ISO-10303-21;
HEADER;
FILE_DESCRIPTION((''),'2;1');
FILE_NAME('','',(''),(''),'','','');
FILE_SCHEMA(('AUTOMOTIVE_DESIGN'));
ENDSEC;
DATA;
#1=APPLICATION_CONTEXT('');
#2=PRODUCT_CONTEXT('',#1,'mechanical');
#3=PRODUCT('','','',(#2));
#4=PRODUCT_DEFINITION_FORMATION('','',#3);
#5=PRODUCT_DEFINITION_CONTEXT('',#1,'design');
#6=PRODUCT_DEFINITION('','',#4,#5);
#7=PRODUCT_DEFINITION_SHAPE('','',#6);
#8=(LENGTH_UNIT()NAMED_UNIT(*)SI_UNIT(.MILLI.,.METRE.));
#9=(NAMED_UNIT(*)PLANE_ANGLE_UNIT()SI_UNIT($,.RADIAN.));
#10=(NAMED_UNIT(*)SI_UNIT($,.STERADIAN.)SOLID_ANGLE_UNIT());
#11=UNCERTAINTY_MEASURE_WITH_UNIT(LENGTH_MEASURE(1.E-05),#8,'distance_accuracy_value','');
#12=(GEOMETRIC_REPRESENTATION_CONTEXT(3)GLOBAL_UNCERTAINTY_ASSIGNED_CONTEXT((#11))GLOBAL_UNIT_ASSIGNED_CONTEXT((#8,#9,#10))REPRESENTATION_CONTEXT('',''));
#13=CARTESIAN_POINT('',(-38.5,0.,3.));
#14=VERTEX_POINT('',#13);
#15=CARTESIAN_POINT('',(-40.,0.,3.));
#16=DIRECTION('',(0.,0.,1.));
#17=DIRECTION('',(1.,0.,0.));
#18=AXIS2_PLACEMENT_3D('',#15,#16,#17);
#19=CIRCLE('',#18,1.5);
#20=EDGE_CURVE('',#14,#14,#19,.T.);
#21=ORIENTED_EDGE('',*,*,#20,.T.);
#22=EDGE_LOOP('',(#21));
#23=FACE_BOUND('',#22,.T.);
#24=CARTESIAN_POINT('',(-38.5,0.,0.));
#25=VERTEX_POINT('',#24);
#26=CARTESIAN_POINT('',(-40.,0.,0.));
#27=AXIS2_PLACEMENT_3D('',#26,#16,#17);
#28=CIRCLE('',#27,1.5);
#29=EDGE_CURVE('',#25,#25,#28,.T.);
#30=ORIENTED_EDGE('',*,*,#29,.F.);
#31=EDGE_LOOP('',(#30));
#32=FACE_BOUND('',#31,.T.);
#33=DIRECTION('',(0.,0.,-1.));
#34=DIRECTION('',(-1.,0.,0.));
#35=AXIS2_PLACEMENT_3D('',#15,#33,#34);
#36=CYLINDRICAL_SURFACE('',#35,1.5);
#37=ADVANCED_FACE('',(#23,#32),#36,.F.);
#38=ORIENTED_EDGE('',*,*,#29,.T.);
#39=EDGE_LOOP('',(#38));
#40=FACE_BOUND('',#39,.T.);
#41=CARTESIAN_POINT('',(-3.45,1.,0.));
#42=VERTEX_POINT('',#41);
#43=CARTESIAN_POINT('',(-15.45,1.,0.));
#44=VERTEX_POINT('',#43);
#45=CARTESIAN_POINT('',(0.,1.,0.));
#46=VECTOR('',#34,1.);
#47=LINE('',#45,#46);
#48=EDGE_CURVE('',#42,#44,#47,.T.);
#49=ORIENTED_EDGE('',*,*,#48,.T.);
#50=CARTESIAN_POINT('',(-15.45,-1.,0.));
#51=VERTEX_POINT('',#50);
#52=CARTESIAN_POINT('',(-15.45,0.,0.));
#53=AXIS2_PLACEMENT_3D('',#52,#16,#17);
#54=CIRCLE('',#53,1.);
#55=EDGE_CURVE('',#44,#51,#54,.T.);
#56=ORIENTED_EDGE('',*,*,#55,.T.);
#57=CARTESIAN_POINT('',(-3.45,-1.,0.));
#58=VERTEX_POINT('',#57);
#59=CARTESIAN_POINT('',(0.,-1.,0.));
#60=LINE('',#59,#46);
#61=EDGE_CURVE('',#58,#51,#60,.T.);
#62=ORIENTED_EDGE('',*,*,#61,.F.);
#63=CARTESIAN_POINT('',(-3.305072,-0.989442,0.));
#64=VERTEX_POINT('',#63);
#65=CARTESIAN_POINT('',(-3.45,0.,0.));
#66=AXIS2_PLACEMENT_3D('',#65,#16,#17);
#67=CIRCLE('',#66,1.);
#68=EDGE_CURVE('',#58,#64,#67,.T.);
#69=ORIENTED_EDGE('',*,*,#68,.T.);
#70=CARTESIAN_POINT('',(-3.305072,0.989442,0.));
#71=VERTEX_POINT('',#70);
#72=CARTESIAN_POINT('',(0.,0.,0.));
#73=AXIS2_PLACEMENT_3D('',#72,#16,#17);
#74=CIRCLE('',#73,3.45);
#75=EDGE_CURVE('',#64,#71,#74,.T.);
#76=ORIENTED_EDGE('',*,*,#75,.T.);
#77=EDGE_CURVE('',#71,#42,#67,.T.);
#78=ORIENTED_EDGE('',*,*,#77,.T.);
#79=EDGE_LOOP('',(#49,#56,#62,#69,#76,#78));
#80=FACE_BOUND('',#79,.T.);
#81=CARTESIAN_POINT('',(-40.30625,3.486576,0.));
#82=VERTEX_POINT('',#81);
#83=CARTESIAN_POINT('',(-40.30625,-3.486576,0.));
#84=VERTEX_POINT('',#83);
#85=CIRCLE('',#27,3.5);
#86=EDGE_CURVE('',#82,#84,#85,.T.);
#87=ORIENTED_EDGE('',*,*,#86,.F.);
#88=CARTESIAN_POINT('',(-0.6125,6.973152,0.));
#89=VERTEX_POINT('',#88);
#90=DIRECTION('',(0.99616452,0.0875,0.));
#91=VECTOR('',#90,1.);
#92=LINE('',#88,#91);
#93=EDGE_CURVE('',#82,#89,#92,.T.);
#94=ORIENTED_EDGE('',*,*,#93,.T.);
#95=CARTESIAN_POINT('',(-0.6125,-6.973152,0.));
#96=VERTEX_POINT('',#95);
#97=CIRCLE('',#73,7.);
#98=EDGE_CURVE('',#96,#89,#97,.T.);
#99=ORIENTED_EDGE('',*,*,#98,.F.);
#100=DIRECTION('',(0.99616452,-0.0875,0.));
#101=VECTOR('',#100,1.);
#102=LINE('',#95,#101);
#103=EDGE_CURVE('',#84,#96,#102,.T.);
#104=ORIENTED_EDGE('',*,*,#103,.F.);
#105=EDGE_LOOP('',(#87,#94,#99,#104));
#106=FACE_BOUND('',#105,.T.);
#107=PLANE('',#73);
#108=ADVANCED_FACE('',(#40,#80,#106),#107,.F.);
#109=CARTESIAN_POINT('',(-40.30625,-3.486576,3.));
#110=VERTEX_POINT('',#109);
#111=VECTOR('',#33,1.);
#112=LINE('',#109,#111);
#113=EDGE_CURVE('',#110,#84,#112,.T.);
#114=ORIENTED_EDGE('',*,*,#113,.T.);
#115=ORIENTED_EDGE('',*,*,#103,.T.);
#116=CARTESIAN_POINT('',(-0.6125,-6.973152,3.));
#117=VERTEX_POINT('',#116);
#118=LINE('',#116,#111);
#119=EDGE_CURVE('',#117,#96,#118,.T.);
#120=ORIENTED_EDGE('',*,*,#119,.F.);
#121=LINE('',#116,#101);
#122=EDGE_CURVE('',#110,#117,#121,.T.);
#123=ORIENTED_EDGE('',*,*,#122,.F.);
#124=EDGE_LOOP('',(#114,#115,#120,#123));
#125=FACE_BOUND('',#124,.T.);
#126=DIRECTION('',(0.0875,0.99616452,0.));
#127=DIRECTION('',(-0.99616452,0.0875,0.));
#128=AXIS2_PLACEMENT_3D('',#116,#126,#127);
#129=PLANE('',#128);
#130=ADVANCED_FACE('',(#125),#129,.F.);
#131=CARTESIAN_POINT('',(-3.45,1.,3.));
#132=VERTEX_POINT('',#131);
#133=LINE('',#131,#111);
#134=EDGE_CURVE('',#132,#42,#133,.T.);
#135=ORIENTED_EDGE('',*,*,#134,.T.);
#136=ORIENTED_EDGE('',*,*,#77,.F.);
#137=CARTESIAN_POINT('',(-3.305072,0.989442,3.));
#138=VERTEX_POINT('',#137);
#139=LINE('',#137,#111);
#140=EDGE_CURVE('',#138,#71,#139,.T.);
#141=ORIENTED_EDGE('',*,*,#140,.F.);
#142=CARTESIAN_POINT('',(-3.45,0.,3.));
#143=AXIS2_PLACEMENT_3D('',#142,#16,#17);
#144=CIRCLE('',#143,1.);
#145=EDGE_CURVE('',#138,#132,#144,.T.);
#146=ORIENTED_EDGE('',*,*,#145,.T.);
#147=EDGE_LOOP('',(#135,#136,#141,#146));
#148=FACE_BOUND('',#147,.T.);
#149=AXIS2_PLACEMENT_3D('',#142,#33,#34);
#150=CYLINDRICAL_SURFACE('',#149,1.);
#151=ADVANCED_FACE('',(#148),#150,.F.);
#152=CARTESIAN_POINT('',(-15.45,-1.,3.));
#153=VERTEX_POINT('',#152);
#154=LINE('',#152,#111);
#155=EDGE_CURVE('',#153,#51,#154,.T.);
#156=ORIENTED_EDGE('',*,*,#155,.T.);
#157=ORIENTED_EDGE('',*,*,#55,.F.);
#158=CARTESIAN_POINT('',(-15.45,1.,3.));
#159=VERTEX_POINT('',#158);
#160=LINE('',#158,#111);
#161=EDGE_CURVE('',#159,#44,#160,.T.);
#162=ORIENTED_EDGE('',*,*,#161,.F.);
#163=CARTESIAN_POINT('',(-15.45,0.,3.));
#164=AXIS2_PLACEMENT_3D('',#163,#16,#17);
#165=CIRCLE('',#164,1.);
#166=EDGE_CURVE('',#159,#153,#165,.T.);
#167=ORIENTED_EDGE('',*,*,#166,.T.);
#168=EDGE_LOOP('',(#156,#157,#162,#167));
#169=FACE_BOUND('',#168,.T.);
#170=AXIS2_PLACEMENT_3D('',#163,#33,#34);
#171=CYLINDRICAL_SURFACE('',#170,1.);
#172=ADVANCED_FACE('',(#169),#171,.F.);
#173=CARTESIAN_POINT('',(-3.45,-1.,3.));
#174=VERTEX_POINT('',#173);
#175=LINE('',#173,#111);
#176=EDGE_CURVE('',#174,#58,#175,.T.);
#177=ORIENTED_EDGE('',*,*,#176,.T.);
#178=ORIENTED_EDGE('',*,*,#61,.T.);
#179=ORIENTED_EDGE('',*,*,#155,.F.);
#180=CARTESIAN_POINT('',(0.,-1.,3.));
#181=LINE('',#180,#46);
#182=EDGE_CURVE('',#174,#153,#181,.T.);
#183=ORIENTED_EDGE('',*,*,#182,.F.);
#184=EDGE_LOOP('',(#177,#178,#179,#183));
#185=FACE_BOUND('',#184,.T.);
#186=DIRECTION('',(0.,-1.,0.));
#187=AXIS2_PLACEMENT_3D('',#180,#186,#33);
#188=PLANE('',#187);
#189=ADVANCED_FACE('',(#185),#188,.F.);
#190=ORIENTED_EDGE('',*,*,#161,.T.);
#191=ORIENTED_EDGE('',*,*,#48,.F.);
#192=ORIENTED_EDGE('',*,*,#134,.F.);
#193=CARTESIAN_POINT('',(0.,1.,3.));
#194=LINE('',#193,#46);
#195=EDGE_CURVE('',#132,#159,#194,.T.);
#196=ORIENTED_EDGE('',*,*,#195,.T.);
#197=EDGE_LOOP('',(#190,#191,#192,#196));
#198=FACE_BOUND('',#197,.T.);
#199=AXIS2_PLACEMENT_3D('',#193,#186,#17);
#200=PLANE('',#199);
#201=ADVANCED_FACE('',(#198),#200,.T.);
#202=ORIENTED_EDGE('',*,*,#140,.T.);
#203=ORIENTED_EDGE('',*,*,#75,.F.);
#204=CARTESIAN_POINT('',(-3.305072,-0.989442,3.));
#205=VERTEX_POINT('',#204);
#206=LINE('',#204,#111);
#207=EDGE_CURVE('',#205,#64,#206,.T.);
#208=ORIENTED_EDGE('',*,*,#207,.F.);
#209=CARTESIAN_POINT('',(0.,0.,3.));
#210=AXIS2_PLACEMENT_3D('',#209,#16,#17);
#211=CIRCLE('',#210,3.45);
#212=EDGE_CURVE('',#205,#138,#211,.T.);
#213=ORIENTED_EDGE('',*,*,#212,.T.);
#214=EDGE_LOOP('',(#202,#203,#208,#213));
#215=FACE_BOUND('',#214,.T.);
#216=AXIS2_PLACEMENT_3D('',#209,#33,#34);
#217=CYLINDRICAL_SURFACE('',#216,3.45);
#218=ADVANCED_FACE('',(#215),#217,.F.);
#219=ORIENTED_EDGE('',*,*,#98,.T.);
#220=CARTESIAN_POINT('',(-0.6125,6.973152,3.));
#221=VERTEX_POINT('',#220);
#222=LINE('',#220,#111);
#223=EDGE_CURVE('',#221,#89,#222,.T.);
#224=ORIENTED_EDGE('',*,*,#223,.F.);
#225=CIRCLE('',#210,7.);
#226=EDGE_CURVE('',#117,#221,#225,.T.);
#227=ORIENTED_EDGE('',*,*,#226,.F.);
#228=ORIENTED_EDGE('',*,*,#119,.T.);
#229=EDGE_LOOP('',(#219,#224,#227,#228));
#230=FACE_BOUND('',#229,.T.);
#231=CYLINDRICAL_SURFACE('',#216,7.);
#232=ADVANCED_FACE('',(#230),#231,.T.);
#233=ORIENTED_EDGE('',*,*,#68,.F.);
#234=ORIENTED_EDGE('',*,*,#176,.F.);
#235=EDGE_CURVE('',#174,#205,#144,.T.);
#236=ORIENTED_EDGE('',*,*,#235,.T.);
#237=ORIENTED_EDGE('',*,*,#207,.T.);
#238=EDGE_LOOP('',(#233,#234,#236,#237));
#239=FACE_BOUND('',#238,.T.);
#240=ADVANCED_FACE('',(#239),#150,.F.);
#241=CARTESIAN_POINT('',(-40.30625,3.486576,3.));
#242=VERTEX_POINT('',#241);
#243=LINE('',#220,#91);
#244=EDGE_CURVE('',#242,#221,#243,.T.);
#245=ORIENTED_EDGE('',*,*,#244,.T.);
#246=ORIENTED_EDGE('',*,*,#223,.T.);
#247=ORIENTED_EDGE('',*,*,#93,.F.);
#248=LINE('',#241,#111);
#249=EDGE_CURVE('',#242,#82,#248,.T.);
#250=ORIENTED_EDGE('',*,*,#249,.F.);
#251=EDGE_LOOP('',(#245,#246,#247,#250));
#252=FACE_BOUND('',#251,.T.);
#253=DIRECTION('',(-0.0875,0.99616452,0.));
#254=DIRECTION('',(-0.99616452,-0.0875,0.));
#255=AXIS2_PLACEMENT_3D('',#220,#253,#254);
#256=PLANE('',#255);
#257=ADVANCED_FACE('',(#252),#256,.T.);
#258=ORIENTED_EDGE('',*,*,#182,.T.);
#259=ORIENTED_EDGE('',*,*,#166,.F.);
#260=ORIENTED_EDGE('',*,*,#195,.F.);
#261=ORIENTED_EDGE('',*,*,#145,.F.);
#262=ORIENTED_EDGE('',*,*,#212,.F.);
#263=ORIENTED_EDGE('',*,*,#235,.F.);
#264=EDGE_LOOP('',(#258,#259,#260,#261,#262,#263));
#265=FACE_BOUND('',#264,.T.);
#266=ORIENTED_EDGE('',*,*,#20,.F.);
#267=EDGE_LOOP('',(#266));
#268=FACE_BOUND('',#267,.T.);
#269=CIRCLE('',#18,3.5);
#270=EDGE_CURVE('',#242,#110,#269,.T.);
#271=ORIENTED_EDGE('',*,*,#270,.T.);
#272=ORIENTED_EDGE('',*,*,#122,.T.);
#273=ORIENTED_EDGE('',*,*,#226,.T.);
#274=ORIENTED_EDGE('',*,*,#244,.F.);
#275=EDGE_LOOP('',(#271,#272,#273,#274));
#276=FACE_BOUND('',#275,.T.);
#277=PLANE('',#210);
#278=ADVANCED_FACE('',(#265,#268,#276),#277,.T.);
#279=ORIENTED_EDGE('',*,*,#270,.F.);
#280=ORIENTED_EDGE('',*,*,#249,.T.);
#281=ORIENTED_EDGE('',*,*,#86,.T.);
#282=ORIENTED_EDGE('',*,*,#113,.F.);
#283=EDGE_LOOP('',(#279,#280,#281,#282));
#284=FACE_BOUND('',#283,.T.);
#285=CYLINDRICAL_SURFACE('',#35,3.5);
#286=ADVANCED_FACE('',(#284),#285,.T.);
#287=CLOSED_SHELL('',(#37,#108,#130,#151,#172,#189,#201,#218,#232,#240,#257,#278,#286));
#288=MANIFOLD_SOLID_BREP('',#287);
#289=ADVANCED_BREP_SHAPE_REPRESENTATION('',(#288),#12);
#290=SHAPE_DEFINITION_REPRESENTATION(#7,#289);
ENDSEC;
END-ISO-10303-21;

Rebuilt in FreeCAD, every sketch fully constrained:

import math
import FreeCAD as App
import Part
import Sketcher
from FreeCAD import Vector
Q = App.Units.Quantity

doc = App.newDocument("Part")
body = doc.addObject("PartDesign::Body", "Body")

# Sketch on XY plane
sketch1 = body.newObject("Sketcher::SketchObject", "Sketch")
sketch1.AttachmentSupport = (doc.getObject("XY_Plane"), [""])
sketch1.MapMode = "FlatFace"
sketch1.addGeometry([
    Part.LineSegment(Vector(-0.61, 6.97, 0), Vector(-40.31, 3.49, 0)),  # 0
    Part.ArcOfCircle(Part.Circle(Vector(-40, 0, 0), Vector(0, 0, 1), 3.5), math.radians(95), math.radians(265)),  # 1
    Part.LineSegment(Vector(-40.31, -3.49, 0), Vector(-0.61, -6.97, 0)),  # 2
    Part.ArcOfCircle(Part.Circle(Vector(0, 0, 0), Vector(0, 0, 1), 7), math.radians(-95), math.radians(95)),  # 3
    Part.Circle(Vector(-40, 0, 0), Vector(0, 0, 1), 1.5),  # 4
    Part.ArcOfCircle(Part.Circle(Vector(0, 0, 0), Vector(0, 0, 1), 3.45), math.radians(-163), math.radians(0)),  # 5
    Part.ArcOfCircle(Part.Circle(Vector(-3.45, 0, 0), Vector(0, 0, 1), 1), math.radians(-90), math.radians(-81.67)),  # 6
    Part.LineSegment(Vector(-3.45, -1, 0), Vector(-15.45, -1, 0)),  # 7
    Part.ArcOfCircle(Part.Circle(Vector(-15.45, 0, 0), Vector(0, 0, 1), 1), math.radians(90), math.radians(270)),  # 8
    Part.LineSegment(Vector(-15.45, 1, 0), Vector(-3.45, 1, 0)),  # 9
    Part.ArcOfCircle(Part.Circle(Vector(-3.45, 0, 0), Vector(0, 0, 1), 1), math.radians(81.67), math.radians(90)),  # 10
    Part.ArcOfCircle(Part.Circle(Vector(0, 0, 0), Vector(0, 0, 1), 3.45), math.radians(0), math.radians(163)),  # 11
], False)
sketch1.addConstraint([
    Sketcher.Constraint("Tangent", 0, 2, 1, 1),
    Sketcher.Constraint("Tangent", 1, 2, 2, 1),
    Sketcher.Constraint("Tangent", 2, 2, 3, 1),
    Sketcher.Constraint("Tangent", 3, 2, 0, 1),
    Sketcher.Constraint("Coincident", 5, 1, 6, 2),
    Sketcher.Constraint("Tangent", 6, 1, 7, 1),
    Sketcher.Constraint("Tangent", 7, 2, 8, 2),
    Sketcher.Constraint("Tangent", 8, 1, 9, 1),
    Sketcher.Constraint("Tangent", 9, 2, 10, 2),
    Sketcher.Constraint("Coincident", 10, 1, 11, 2),
    Sketcher.Constraint("Tangent", 11, 1, 5, 2),
    Sketcher.Constraint("Horizontal", 7),
    Sketcher.Constraint("Horizontal", 9),
    Sketcher.Constraint("Coincident", 3, 3, -1, 1),
    Sketcher.Constraint("Coincident", 5, 3, -1, 1),
    Sketcher.Constraint("Coincident", 4, 3, 1, 3),
    Sketcher.Constraint("Coincident", 10, 3, 6, 3),
    Sketcher.Constraint("Equal", 6, 8),
    Sketcher.Constraint("Equal", 5, 11),
    Sketcher.Constraint("PointOnObject", 1, 3, -1),
    Sketcher.Constraint("PointOnObject", 6, 3, -1),
    Sketcher.Constraint("PointOnObject", 11, 1, -1),
    Sketcher.Constraint("Diameter", 4, Q("3 mm")),
    Sketcher.Constraint("Radius", 3, Q("7 mm")),
    Sketcher.Constraint("Radius", 6, Q("1 mm")),
    Sketcher.Constraint("Radius", 1, Q("3.5 mm")),
    Sketcher.Constraint("DistanceX", 7, 2, 7, 1, Q("12 mm")),
    Sketcher.Constraint("Radius", 5, Q("3.45 mm")),
    Sketcher.Constraint("DistanceX", 1, 3, -1, 1, Q("40 mm")),
    Sketcher.Constraint("DistanceX", 6, 3, -1, 1, Q("3.45 mm")),
])
pad1 = body.newObject("PartDesign::Pad", "Pad")
pad1.Profile = sketch1
pad1.Length = 3

doc.recompute()
